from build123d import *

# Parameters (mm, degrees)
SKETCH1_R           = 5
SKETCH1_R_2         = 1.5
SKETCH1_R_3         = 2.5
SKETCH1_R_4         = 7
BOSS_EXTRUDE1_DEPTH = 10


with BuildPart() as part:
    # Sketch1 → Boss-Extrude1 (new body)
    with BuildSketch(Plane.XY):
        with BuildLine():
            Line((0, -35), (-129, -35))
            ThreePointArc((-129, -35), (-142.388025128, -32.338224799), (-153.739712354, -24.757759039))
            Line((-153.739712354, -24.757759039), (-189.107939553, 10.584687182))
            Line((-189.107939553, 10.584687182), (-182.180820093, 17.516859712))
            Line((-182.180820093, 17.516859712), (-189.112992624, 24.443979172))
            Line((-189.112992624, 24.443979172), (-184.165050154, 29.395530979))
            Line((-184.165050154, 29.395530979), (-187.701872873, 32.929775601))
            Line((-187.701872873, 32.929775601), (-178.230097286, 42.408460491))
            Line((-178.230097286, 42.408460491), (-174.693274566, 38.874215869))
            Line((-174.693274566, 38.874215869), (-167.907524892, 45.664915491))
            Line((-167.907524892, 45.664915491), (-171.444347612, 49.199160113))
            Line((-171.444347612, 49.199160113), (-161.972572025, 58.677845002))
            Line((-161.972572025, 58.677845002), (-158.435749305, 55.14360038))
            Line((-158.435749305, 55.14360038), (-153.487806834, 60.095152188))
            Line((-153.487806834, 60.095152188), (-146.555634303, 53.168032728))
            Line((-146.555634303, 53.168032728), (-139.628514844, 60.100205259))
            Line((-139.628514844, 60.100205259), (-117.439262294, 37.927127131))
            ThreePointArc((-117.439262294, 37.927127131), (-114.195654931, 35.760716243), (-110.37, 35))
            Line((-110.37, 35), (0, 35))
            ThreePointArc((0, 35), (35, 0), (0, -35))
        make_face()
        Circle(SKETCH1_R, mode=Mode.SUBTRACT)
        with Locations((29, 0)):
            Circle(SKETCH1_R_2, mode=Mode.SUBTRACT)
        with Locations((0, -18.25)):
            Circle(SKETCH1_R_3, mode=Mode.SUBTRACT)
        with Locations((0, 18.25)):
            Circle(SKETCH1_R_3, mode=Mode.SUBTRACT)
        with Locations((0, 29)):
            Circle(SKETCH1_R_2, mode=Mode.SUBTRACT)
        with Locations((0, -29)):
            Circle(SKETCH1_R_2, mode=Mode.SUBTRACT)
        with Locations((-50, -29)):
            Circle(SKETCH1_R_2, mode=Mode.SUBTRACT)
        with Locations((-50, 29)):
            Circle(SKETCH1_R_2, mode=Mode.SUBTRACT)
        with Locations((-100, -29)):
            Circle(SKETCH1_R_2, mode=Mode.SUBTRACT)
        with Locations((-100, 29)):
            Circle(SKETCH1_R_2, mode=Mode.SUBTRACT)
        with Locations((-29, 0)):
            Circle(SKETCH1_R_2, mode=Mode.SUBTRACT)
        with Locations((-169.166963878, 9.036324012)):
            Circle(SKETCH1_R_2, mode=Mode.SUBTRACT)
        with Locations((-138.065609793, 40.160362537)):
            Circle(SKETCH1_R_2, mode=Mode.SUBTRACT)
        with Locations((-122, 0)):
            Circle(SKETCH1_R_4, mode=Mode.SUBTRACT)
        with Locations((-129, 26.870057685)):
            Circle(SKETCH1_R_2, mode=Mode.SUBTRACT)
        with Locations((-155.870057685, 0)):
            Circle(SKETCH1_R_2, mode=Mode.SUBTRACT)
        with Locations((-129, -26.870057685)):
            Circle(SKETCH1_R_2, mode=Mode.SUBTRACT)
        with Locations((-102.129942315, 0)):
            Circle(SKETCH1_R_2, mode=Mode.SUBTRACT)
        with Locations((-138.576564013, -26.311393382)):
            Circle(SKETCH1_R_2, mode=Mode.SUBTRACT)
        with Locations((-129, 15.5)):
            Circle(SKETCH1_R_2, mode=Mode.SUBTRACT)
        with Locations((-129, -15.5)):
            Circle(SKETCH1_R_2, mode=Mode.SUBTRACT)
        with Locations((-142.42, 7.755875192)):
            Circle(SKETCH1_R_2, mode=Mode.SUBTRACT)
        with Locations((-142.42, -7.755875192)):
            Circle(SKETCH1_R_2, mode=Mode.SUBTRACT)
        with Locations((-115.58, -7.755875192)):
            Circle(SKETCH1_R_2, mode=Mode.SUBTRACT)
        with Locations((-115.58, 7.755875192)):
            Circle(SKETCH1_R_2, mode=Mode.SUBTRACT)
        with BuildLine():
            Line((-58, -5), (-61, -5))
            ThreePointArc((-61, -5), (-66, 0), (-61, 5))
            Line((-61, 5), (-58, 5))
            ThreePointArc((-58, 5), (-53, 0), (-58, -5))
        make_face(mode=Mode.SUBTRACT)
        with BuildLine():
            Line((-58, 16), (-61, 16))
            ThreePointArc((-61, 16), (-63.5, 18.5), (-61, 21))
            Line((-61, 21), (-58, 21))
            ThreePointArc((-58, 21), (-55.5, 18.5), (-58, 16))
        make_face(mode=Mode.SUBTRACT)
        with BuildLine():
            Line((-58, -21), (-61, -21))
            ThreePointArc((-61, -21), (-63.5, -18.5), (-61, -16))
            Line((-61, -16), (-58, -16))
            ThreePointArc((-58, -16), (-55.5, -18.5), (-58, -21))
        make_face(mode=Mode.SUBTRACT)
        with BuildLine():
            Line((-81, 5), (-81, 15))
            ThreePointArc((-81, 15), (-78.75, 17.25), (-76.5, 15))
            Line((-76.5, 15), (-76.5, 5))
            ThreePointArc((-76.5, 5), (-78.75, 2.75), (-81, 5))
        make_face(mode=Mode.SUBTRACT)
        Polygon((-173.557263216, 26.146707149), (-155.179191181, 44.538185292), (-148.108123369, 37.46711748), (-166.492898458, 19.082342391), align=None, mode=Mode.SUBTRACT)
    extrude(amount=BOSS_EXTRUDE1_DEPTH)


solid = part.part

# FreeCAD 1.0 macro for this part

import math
import FreeCAD as App
import Part
import Sketcher

V = App.Vector
Q = App.Units.Quantity


def add_polygon(sketch, points):
    """Adds a closed chain of lines whose ends are joined by coincident constraints."""
    first, n = sketch.GeometryCount, len(points)
    for a, b in zip(points, points[1:] + points[:1]):
        sketch.addGeometry(Part.LineSegment(App.Vector(*a, 0), App.Vector(*b, 0)), False)
    for i in range(n):
        sketch.addConstraint(Sketcher.Constraint("Coincident", first + i, 2, first + (i + 1) % n, 1))

doc = App.newDocument("Part")
params = doc.addObject("Spreadsheet::Sheet", "Params")
for row, (alias, value) in enumerate([
    ("sketch1_diameter", "3 mm"),
    ("sketch1_diameter2", "5 mm"),
    ("sketch1_diameter3", "10 mm"),
    ("sketch1_diameter4", "14 mm"),
    ("sketch1_radius", "35 mm"),
    ("pad1_length", "10 mm"),
], start=1):
    params.set(f"A{row}", alias)
    params.set(f"B{row}", "=" + value)
    params.setAlias(f"B{row}", alias)

body = doc.addObject("PartDesign::Body", "Body")

# Sketch on XY plane
sketch1 = body.newObject("Sketcher::SketchObject", "Sketch")
sketch1.AttachmentSupport = (doc.getObject("XY_Plane"), [""])
sketch1.MapMode = "FlatFace"
sketch1.addGeometry(Part.LineSegment(V(-129, -35, 0), V(0, -35, 0)), False)  # 0
sketch1.addGeometry(Part.ArcOfCircle(Part.Circle(V(0, 0, 0), V(0, 0, 1), 35), math.radians(-90), math.radians(90)), False)  # 1
sketch1.addGeometry(Part.LineSegment(V(0, 35, 0), V(-110.37, 35, 0)), False)  # 2
sketch1.addGeometry(Part.ArcOfCircle(Part.Circle(V(-110.37, 45, 0), V(0, 0, 1), 10), math.radians(-134.985372), math.radians(-90)), False)  # 3
sketch1.addGeometry(Part.LineSegment(V(-117.439262, 37.927127, 0), V(-139.628515, 60.100205, 0)), False)  # 4
sketch1.addGeometry(Part.LineSegment(V(-139.628515, 60.100205, 0), V(-146.555634, 53.168033, 0)), False)  # 5
sketch1.addGeometry(Part.LineSegment(V(-146.555634, 53.168033, 0), V(-153.487807, 60.095152, 0)), False)  # 6
sketch1.addGeometry(Part.LineSegment(V(-153.487807, 60.095152, 0), V(-158.435749, 55.1436, 0)), False)  # 7
sketch1.addGeometry(Part.LineSegment(V(-158.435749, 55.1436, 0), V(-161.972572, 58.677845, 0)), False)  # 8
sketch1.addGeometry(Part.LineSegment(V(-161.972572, 58.677845, 0), V(-171.444348, 49.19916, 0)), False)  # 9
sketch1.addGeometry(Part.LineSegment(V(-171.444348, 49.19916, 0), V(-167.907525, 45.664915, 0)), False)  # 10
sketch1.addGeometry(Part.LineSegment(V(-167.907525, 45.664915, 0), V(-174.693275, 38.874216, 0)), False)  # 11
sketch1.addGeometry(Part.LineSegment(V(-174.693275, 38.874216, 0), V(-178.230097, 42.40846, 0)), False)  # 12
sketch1.addGeometry(Part.LineSegment(V(-178.230097, 42.40846, 0), V(-187.701873, 32.929776, 0)), False)  # 13
sketch1.addGeometry(Part.LineSegment(V(-187.701873, 32.929776, 0), V(-184.16505, 29.395531, 0)), False)  # 14
sketch1.addGeometry(Part.LineSegment(V(-184.16505, 29.395531, 0), V(-189.112993, 24.443979, 0)), False)  # 15
sketch1.addGeometry(Part.LineSegment(V(-189.112993, 24.443979, 0), V(-182.18082, 17.51686, 0)), False)  # 16
sketch1.addGeometry(Part.LineSegment(V(-182.18082, 17.51686, 0), V(-189.10794, 10.584687, 0)), False)  # 17
sketch1.addGeometry(Part.LineSegment(V(-189.10794, 10.584687, 0), V(-153.739712, -24.757759, 0)), False)  # 18
sketch1.addGeometry(Part.ArcOfCircle(Part.Circle(V(-129, 0, 0), V(0, 0, 1), 35), math.radians(-134.97911), math.radians(-90)), False)  # 19
sketch1.addGeometry(Part.Circle(V(0, -29, 0), V(0, 0, 1), 1.5), False)  # 20
sketch1.addGeometry(Part.Circle(V(0, -18.25, 0), V(0, 0, 1), 2.5), False)  # 21
sketch1.addGeometry(Part.Circle(V(-50, -29, 0), V(0, 0, 1), 1.5), False)  # 22
sketch1.addGeometry(Part.LineSegment(V(-58, -21, 0), V(-61, -21, 0)), False)  # 23
sketch1.addGeometry(Part.ArcOfCircle(Part.Circle(V(-61, -18.5, 0), V(0, 0, 1), 2.5), math.radians(90), math.radians(270)), False)  # 24
sketch1.addGeometry(Part.LineSegment(V(-61, -16, 0), V(-58, -16, 0)), False)  # 25
sketch1.addGeometry(Part.ArcOfCircle(Part.Circle(V(-58, -18.5, 0), V(0, 0, 1), 2.5), math.radians(-90), math.radians(90)), False)  # 26
sketch1.addGeometry(Part.Circle(V(29, 0, 0), V(0, 0, 1), 1.5), False)  # 27
sketch1.addGeometry(Part.Circle(V(0, 0, 0), V(0, 0, 1), 5), False)  # 28
sketch1.addGeometry(Part.Circle(V(-29, 0, 0), V(0, 0, 1), 1.5), False)  # 29
sketch1.addGeometry(Part.LineSegment(V(-58, -5, 0), V(-61, -5, 0)), False)  # 30
sketch1.addGeometry(Part.ArcOfCircle(Part.Circle(V(-61, 0, 0), V(0, 0, 1), 5), math.radians(90), math.radians(270)), False)  # 31
sketch1.addGeometry(Part.LineSegment(V(-61, 5, 0), V(-58, 5, 0)), False)  # 32
sketch1.addGeometry(Part.ArcOfCircle(Part.Circle(V(-58, 0, 0), V(0, 0, 1), 5), math.radians(-90), math.radians(90)), False)  # 33
sketch1.addGeometry(Part.Circle(V(-100, -29, 0), V(0, 0, 1), 1.5), False)  # 34
sketch1.addGeometry(Part.Circle(V(-129, -26.870058, 0), V(0, 0, 1), 1.5), False)  # 35
sketch1.addGeometry(Part.Circle(V(-138.576564, -26.311393, 0), V(0, 0, 1), 1.5), False)  # 36
sketch1.addGeometry(Part.Circle(V(-129, -15.5, 0), V(0, 0, 1), 1.5), False)  # 37
sketch1.addGeometry(Part.Circle(V(-115.58, -7.755875, 0), V(0, 0, 1), 1.5), False)  # 38
sketch1.addGeometry(Part.Circle(V(-102.129942, 0, 0), V(0, 0, 1), 1.5), False)  # 39
sketch1.addGeometry(Part.Circle(V(-122, 0, 0), V(0, 0, 1), 7), False)  # 40
sketch1.addGeometry(Part.Circle(V(-142.42, -7.755875, 0), V(0, 0, 1), 1.5), False)  # 41
sketch1.addGeometry(Part.Circle(V(-155.870058, 0, 0), V(0, 0, 1), 1.5), False)  # 42
sketch1.addGeometry(Part.Circle(V(0, 18.25, 0), V(0, 0, 1), 2.5), False)  # 43
sketch1.addGeometry(Part.LineSegment(V(-58, 16, 0), V(-61, 16, 0)), False)  # 44
sketch1.addGeometry(Part.ArcOfCircle(Part.Circle(V(-61, 18.5, 0), V(0, 0, 1), 2.5), math.radians(90), math.radians(270)), False)  # 45
sketch1.addGeometry(Part.LineSegment(V(-61, 21, 0), V(-58, 21, 0)), False)  # 46
sketch1.addGeometry(Part.ArcOfCircle(Part.Circle(V(-58, 18.5, 0), V(0, 0, 1), 2.5), math.radians(-90), math.radians(90)), False)  # 47
sketch1.addGeometry(Part.Circle(V(0, 29, 0), V(0, 0, 1), 1.5), False)  # 48
sketch1.addGeometry(Part.Circle(V(-50, 29, 0), V(0, 0, 1), 1.5), False)  # 49
sketch1.addGeometry(Part.LineSegment(V(-81, 5, 0), V(-81, 15, 0)), False)  # 50
sketch1.addGeometry(Part.ArcOfCircle(Part.Circle(V(-78.75, 15, 0), V(0, 0, 1), 2.25), math.radians(0), math.radians(180)), False)  # 51
sketch1.addGeometry(Part.LineSegment(V(-76.5, 15, 0), V(-76.5, 5, 0)), False)  # 52
sketch1.addGeometry(Part.ArcOfCircle(Part.Circle(V(-78.75, 5, 0), V(0, 0, 1), 2.25), math.radians(180), math.radians(360)), False)  # 53
sketch1.addGeometry(Part.Circle(V(-115.58, 7.755875, 0), V(0, 0, 1), 1.5), False)  # 54
sketch1.addGeometry(Part.Circle(V(-142.42, 7.755875, 0), V(0, 0, 1), 1.5), False)  # 55
sketch1.addGeometry(Part.Circle(V(-129, 15.5, 0), V(0, 0, 1), 1.5), False)  # 56
sketch1.addGeometry(Part.Circle(V(-169.166964, 9.036324, 0), V(0, 0, 1), 1.5), False)  # 57
sketch1.addGeometry(Part.Circle(V(-100, 29, 0), V(0, 0, 1), 1.5), False)  # 58
sketch1.addGeometry(Part.Circle(V(-129, 26.870058, 0), V(0, 0, 1), 1.5), False)  # 59
add_polygon(sketch1, [(-173.557263, 26.146707), (-155.179191, 44.538185), (-148.108123, 37.467117), (-166.492898, 19.082342)])  # lines 60-63
sketch1.addGeometry(Part.Circle(V(-138.06561, 40.160363, 0), V(0, 0, 1), 1.5), False)  # 64
sketch1.addConstraint(Sketcher.Constraint("Tangent", 0, 2, 1, 1))
sketch1.addConstraint(Sketcher.Constraint("Tangent", 1, 2, 2, 1))
sketch1.addConstraint(Sketcher.Constraint("Tangent", 2, 2, 3, 2))
sketch1.addConstraint(Sketcher.Constraint("Coincident", 3, 1, 4, 1))
sketch1.addConstraint(Sketcher.Constraint("Coincident", 4, 2, 5, 1))
sketch1.addConstraint(Sketcher.Constraint("Coincident", 5, 2, 6, 1))
sketch1.addConstraint(Sketcher.Constraint("Coincident", 6, 2, 7, 1))
sketch1.addConstraint(Sketcher.Constraint("Coincident", 7, 2, 8, 1))
sketch1.addConstraint(Sketcher.Constraint("Coincident", 8, 2, 9, 1))
sketch1.addConstraint(Sketcher.Constraint("Coincident", 9, 2, 10, 1))
sketch1.addConstraint(Sketcher.Constraint("Coincident", 10, 2, 11, 1))
sketch1.addConstraint(Sketcher.Constraint("Coincident", 11, 2, 12, 1))
sketch1.addConstraint(Sketcher.Constraint("Coincident", 12, 2, 13, 1))
sketch1.addConstraint(Sketcher.Constraint("Coincident", 13, 2, 14, 1))
sketch1.addConstraint(Sketcher.Constraint("Coincident", 14, 2, 15, 1))
sketch1.addConstraint(Sketcher.Constraint("Coincident", 15, 2, 16, 1))
sketch1.addConstraint(Sketcher.Constraint("Coincident", 16, 2, 17, 1))
sketch1.addConstraint(Sketcher.Constraint("Coincident", 17, 2, 18, 1))
sketch1.addConstraint(Sketcher.Constraint("Tangent", 18, 2, 19, 1))
sketch1.addConstraint(Sketcher.Constraint("Tangent", 19, 2, 0, 1))
sketch1.addConstraint(Sketcher.Constraint("Tangent", 23, 2, 24, 2))
sketch1.addConstraint(Sketcher.Constraint("Tangent", 24, 1, 25, 1))
sketch1.addConstraint(Sketcher.Constraint("Tangent", 25, 2, 26, 2))
sketch1.addConstraint(Sketcher.Constraint("Tangent", 26, 1, 23, 1))
sketch1.addConstraint(Sketcher.Constraint("Tangent", 30, 2, 31, 2))
sketch1.addConstraint(Sketcher.Constraint("Tangent", 31, 1, 32, 1))
sketch1.addConstraint(Sketcher.Constraint("Tangent", 32, 2, 33, 2))
sketch1.addConstraint(Sketcher.Constraint("Tangent", 33, 1, 30, 1))
sketch1.addConstraint(Sketcher.Constraint("Tangent", 44, 2, 45, 2))
sketch1.addConstraint(Sketcher.Constraint("Tangent", 45, 1, 46, 1))
sketch1.addConstraint(Sketcher.Constraint("Tangent", 46, 2, 47, 2))
sketch1.addConstraint(Sketcher.Constraint("Tangent", 47, 1, 44, 1))
sketch1.addConstraint(Sketcher.Constraint("Tangent", 50, 2, 51, 2))
sketch1.addConstraint(Sketcher.Constraint("Tangent", 51, 1, 52, 1))
sketch1.addConstraint(Sketcher.Constraint("Tangent", 52, 2, 53, 2))
sketch1.addConstraint(Sketcher.Constraint("Tangent", 53, 1, 50, 1))
sketch1.addConstraint(Sketcher.Constraint("Horizontal", 0))
sketch1.addConstraint(Sketcher.Constraint("Horizontal", 2))
sketch1.addConstraint(Sketcher.Constraint("Horizontal", 23))
sketch1.addConstraint(Sketcher.Constraint("Horizontal", 25))
sketch1.addConstraint(Sketcher.Constraint("Horizontal", 30))
sketch1.addConstraint(Sketcher.Constraint("Horizontal", 32))
sketch1.addConstraint(Sketcher.Constraint("Horizontal", 44))
sketch1.addConstraint(Sketcher.Constraint("Horizontal", 46))
sketch1.addConstraint(Sketcher.Constraint("Vertical", 50))
sketch1.addConstraint(Sketcher.Constraint("Vertical", 52))
sketch1.addConstraint(Sketcher.Constraint("Coincident", 1, 3, -1, 1))
sketch1.addConstraint(Sketcher.Constraint("Coincident", 28, 3, -1, 1))
sketch1.addConstraint(Sketcher.Constraint("Equal", 1, 19))
sketch1.addConstraint(Sketcher.Constraint("Equal", 20, 22))
sketch1.addConstraint(Sketcher.Constraint("Equal", 21, 24))
sketch1.addConstraint(Sketcher.Constraint("Equal", 22, 27))
sketch1.addConstraint(Sketcher.Constraint("Equal", 27, 29))
sketch1.addConstraint(Sketcher.Constraint("Equal", 28, 31))
sketch1.addConstraint(Sketcher.Constraint("Equal", 29, 34))
sketch1.addConstraint(Sketcher.Constraint("Equal", 34, 35))
sketch1.addConstraint(Sketcher.Constraint("Equal", 35, 36))
sketch1.addConstraint(Sketcher.Constraint("Equal", 36, 37))
sketch1.addConstraint(Sketcher.Constraint("Equal", 37, 38))
sketch1.addConstraint(Sketcher.Constraint("Equal", 38, 39))
sketch1.addConstraint(Sketcher.Constraint("Equal", 39, 41))
sketch1.addConstraint(Sketcher.Constraint("Equal", 41, 42))
sketch1.addConstraint(Sketcher.Constraint("Equal", 26, 43))
sketch1.addConstraint(Sketcher.Constraint("Equal", 43, 45))
sketch1.addConstraint(Sketcher.Constraint("Equal", 42, 48))
sketch1.addConstraint(Sketcher.Constraint("Equal", 48, 49))
sketch1.addConstraint(Sketcher.Constraint("Equal", 49, 54))
sketch1.addConstraint(Sketcher.Constraint("Equal", 54, 55))
sketch1.addConstraint(Sketcher.Constraint("Equal", 55, 56))
sketch1.addConstraint(Sketcher.Constraint("Equal", 56, 57))
sketch1.addConstraint(Sketcher.Constraint("Equal", 57, 58))
sketch1.addConstraint(Sketcher.Constraint("Equal", 58, 59))
sketch1.addConstraint(Sketcher.Constraint("Equal", 59, 64))
sketch1.addConstraint(Sketcher.Constraint("Symmetric", 27, 3, 29, 3, -1, 1))
sketch1.addConstraint(Sketcher.Constraint("Symmetric", 21, 3, 43, 3, -1, 1))
sketch1.addConstraint(Sketcher.Constraint("Symmetric", 20, 3, 48, 3, -1, 1))
sketch1.addConstraint(Sketcher.Constraint("Symmetric", 24, 3, 45, 3, -1))
sketch1.addConstraint(Sketcher.Constraint("Symmetric", 22, 3, 49, 3, -1))
sketch1.addConstraint(Sketcher.Constraint("Symmetric", 38, 3, 54, 3, -1))
sketch1.addConstraint(Sketcher.Constraint("Symmetric", 41, 3, 55, 3, -1))
sketch1.addConstraint(Sketcher.Constraint("Symmetric", 37, 3, 56, 3, -1))
sketch1.addConstraint(Sketcher.Constraint("Symmetric", 34, 3, 58, 3, -1))
sketch1.addConstraint(Sketcher.Constraint("Symmetric", 35, 3, 59, 3, -1))
sketch1.addConstraint(Sketcher.Constraint("PointOnObject", 20, 3, -2))
sketch1.addConstraint(Sketcher.Constraint("PointOnObject", 21, 3, -2))
sketch1.addConstraint(Sketcher.Constraint("PointOnObject", 27, 3, -1))
sketch1.addConstraint(Sketcher.Constraint("PointOnObject", 31, 3, -1))
sketch1.addConstraint(Sketcher.Constraint("PointOnObject", 39, 3, -1))
sketch1.addConstraint(Sketcher.Constraint("PointOnObject", 40, 3, -1))
sketch1.addConstraint(Sketcher.Constraint("PointOnObject", 42, 3, -1))
sketch1.addConstraint(Sketcher.Constraint("Perpendicular", 4, 5))
sketch1.addConstraint(Sketcher.Constraint("Perpendicular", 5, 6))
sketch1.addConstraint(Sketcher.Constraint("Perpendicular", 6, 7))
sketch1.addConstraint(Sketcher.Constraint("Perpendicular", 7, 8))
sketch1.addConstraint(Sketcher.Constraint("Perpendicular", 8, 9))
sketch1.addConstraint(Sketcher.Constraint("Perpendicular", 9, 10))
sketch1.addConstraint(Sketcher.Constraint("Perpendicular", 10, 11))
sketch1.addConstraint(Sketcher.Constraint("Perpendicular", 11, 12))
sketch1.addConstraint(Sketcher.Constraint("Perpendicular", 12, 13))
sketch1.addConstraint(Sketcher.Constraint("Perpendicular", 13, 14))
sketch1.addConstraint(Sketcher.Constraint("Perpendicular", 14, 15))
sketch1.addConstraint(Sketcher.Constraint("Perpendicular", 15, 16))
sketch1.addConstraint(Sketcher.Constraint("Perpendicular", 16, 17))
sketch1.addConstraint(Sketcher.Constraint("Perpendicular", 17, 18))
sketch1.addConstraint(Sketcher.Constraint("Perpendicular", 18, 60))
sketch1.addConstraint(Sketcher.Constraint("Perpendicular", 61, 62))
sketch1.addConstraint(Sketcher.Constraint("Perpendicular", 62, 63))
sketch1.addConstraint(Sketcher.Constraint("Horizontal", 20, 3, 22, 3))
sketch1.addConstraint(Sketcher.Constraint("Horizontal", 22, 3, 34, 3))
sketch1.addConstraint(Sketcher.Constraint("Horizontal", 38, 3, 41, 3))
sketch1.addConstraint(Sketcher.Constraint("Horizontal", 53, 3, 31, 1))
sketch1.addConstraint(Sketcher.Constraint("Vertical", 24, 3, 31, 3))
sketch1.addConstraint(Sketcher.Constraint("Vertical", 26, 3, 33, 3))
sketch1.addConstraint(Sketcher.Constraint("Vertical", 19, 3, 35, 3))
sketch1.addConstraint(Sketcher.Constraint("Vertical", 35, 3, 37, 3))
sketch1.addConstraint(Sketcher.Constraint("Vertical", 33, 3, 47, 3))
sketch1.addConstraint(Sketcher.Constraint("Equal", 5, 6))
sketch1.addConstraint(Sketcher.Constraint("Equal", 8, 10))
sketch1.addConstraint(Sketcher.Constraint("Equal", 10, 12))
sketch1.addConstraint(Sketcher.Constraint("Equal", 9, 13))
sketch1.addConstraint(Sketcher.Constraint("Equal", 12, 14))
sketch1.addConstraint(Sketcher.Constraint("Equal", 7, 15))
sketch1.addConstraint(Sketcher.Constraint("Equal", 6, 16))
sketch1.addConstraint(Sketcher.Constraint("Equal", 16, 17))
sketch1.addConstraint(Sketcher.Constraint("Diameter", 20, 3.0))
sketch1.addConstraint(Sketcher.Constraint("Diameter", 21, 5.0))
sketch1.addConstraint(Sketcher.Constraint("Diameter", 28, 10.0))
sketch1.addConstraint(Sketcher.Constraint("Diameter", 40, 14.0))
sketch1.addConstraint(Sketcher.Constraint("Radius", 1, 35.0))
sketch1.addConstraint(Sketcher.Constraint("Radius", 3, 10.0))
sketch1.addConstraint(Sketcher.Constraint("DistanceX", 0, 1, 0, 2, 129.0))
sketch1.addConstraint(Sketcher.Constraint("DistanceX", 23, 2, 23, 1, 3.0))
sketch1.addConstraint(Sketcher.Constraint("DistanceY", 50, 1, 50, 2, 10.0))
sketch1.addConstraint(Sketcher.Constraint("Angle", 61, Q("-45 deg")))
sketch1.addConstraint(Sketcher.Constraint("Radius", 51, 2.25))
sketch1.addConstraint(Sketcher.Constraint("Distance", 7, 7.0))
sketch1.addConstraint(Sketcher.Constraint("Distance", 8, 5.0))
sketch1.addConstraint(Sketcher.Constraint("Distance", 18, 50.0))
sketch1.addConstraint(Sketcher.Constraint("Distance", 60, 26.0))
sketch1.addConstraint(Sketcher.Constraint("Distance", 61, 10.0))
sketch1.addConstraint(Sketcher.Constraint("DistanceY", 20, 3, -1, 1, 29.0))
sketch1.addConstraint(Sketcher.Constraint("DistanceX", 22, 3, -1, 1, 50.0))
sketch1.addConstraint(Sketcher.Constraint("DistanceX", 24, 3, -1, 1, 61.0))
sketch1.addConstraint(Sketcher.Constraint("DistanceX", -1, 1, 27, 3, 29.0))
sketch1.addConstraint(Sketcher.Constraint("DistanceX", 34, 3, -1, 1, 100.0))
sketch1.addConstraint(Sketcher.Constraint("DistanceX", 40, 3, -1, 1, 122.0))
sketch1.addConstraint(Sketcher.Constraint("DistanceY", 23, 2, -1, 1, 21.0))
sketch1.addConstraint(Sketcher.Constraint("DistanceX", 50, 2, -1, 1, 81.0))
sketch1.addConstraint(Sketcher.Constraint("Distance", 5, 9.8))
sketch1.addConstraint(Sketcher.Constraint("Distance", 9, 13.4))
sketch1.addConstraint(Sketcher.Constraint("Distance", 11, 9.6))
sketch1.addConstraint(Sketcher.Constraint("DistanceX", 2, 2, 2, 1, 110.37))
sketch1.addConstraint(Sketcher.Constraint("DistanceY", 37, 3, -1, 1, 15.5))
sketch1.addConstraint(Sketcher.Constraint("DistanceY", 21, 3, -1, 1, 18.25))
sketch1.addConstraint(Sketcher.Constraint("DistanceX", 38, 3, -1, 1, 115.58))
sketch1.addConstraint(Sketcher.Constraint("DistanceX", 41, 3, -1, 1, 142.42))
sketch1.addConstraint(Sketcher.Constraint("DistanceX", 62, 2, -1, 1, 166.492898))
sketch1.addConstraint(Sketcher.Constraint("DistanceX", 64, 3, -1, 1, 138.06561))
sketch1.addConstraint(Sketcher.Constraint("Distance", 4, 31.368907))
sketch1.addConstraint(Sketcher.Constraint("DistanceY", 35, 3, -1, 1, 26.870058))
sketch1.addConstraint(Sketcher.Constraint("DistanceX", 36, 3, -1, 1, 138.576564))
sketch1.addConstraint(Sketcher.Constraint("DistanceY", 36, 3, -1, 1, 26.311393))
sketch1.addConstraint(Sketcher.Constraint("DistanceY", 38, 3, -1, 1, 7.755875))
sketch1.addConstraint(Sketcher.Constraint("DistanceX", 39, 3, -1, 1, 102.129942))
sketch1.addConstraint(Sketcher.Constraint("DistanceX", 42, 3, -1, 1, 155.870058))
sketch1.addConstraint(Sketcher.Constraint("DistanceX", 57, 3, -1, 1, 169.166964))
sketch1.addConstraint(Sketcher.Constraint("DistanceY", -1, 1, 57, 3, 9.036324))
sketch1.addConstraint(Sketcher.Constraint("DistanceY", -1, 1, 64, 3, 40.160363))
sketch1.addConstraint(Sketcher.Constraint("DistanceY", -1, 1, 60, 2, 44.538185))
sketch1.setExpression("Constraints[128]", "Params.sketch1_diameter")
sketch1.setExpression("Constraints[129]", "Params.sketch1_diameter2")
sketch1.setExpression("Constraints[130]", "Params.sketch1_diameter3")
sketch1.setExpression("Constraints[131]", "Params.sketch1_diameter4")
sketch1.setExpression("Constraints[132]", "Params.sketch1_radius")
pad1 = body.newObject("PartDesign::Pad", "Pad")
pad1.Profile = sketch1
pad1.setExpression("Length", "Params.pad1_length")

doc.recompute()
